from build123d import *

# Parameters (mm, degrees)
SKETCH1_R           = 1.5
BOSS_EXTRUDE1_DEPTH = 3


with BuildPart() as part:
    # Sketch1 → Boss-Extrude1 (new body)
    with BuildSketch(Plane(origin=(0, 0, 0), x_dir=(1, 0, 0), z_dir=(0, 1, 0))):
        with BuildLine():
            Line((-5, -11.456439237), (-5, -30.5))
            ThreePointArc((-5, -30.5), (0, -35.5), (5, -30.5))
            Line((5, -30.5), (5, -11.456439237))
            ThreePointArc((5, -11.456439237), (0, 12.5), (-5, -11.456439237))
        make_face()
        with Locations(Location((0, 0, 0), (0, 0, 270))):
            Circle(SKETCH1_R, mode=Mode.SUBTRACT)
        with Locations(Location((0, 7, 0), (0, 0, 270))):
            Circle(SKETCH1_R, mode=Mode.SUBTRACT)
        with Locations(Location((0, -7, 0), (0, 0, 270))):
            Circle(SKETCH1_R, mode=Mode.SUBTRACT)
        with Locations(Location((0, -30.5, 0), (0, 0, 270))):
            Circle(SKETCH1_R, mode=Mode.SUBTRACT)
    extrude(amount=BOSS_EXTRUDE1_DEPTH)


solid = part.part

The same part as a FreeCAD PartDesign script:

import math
import FreeCAD as App
import Part
import Sketcher

doc = App.newDocument("Part")
body = doc.addObject("PartDesign::Body", "Body")

sketch1 = body.newObject("Sketcher::SketchObject", "Sketch")
sketch1.AttachmentSupport = (doc.getObject("XZ_Plane"), [""])
sketch1.MapMode = "FlatFace"
sketch1.addGeometry(Part.LineSegment(App.Vector(-5, 11.456439, 0), App.Vector(-5, 30.5, 0)), False)
sketch1.addGeometry(Part.ArcOfCircle(Part.Circle(App.Vector(0, 30.5, 0), App.Vector(0, 0, 1), 5), math.radians(0), math.radians(180)), False)
sketch1.addGeometry(Part.LineSegment(App.Vector(5, 30.5, 0), App.Vector(5, 11.456439, 0)), False)
sketch1.addGeometry(Part.ArcOfCircle(Part.Circle(App.Vector(0, 0, 0), App.Vector(0, 0, 1), 12.5), math.radians(113.578178), math.radians(426.421822)), False)
sketch1.addGeometry(Part.Circle(App.Vector(0, 30.5, 0), App.Vector(0, 0, 1), 1.5), False)
sketch1.addGeometry(Part.Circle(App.Vector(0, 7, 0), App.Vector(0, 0, 1), 1.5), False)
sketch1.addGeometry(Part.Circle(App.Vector(0, 0, 0), App.Vector(0, 0, 1), 1.5), False)
sketch1.addGeometry(Part.Circle(App.Vector(0, -7, 0), App.Vector(0, 0, 1), 1.5), False)
sketch1.addConstraint(Sketcher.Constraint("Tangent", 0, 2, 1, 2))
sketch1.addConstraint(Sketcher.Constraint("Tangent", 1, 1, 2, 1))
sketch1.addConstraint(Sketcher.Constraint("Coincident", 2, 2, 3, 2))
sketch1.addConstraint(Sketcher.Constraint("Coincident", 3, 1, 0, 1))
sketch1.addConstraint(Sketcher.Constraint("Vertical", 0))
sketch1.addConstraint(Sketcher.Constraint("Vertical", 2))
sketch1.addConstraint(Sketcher.Constraint("Coincident", 3, 3, -1, 1))
sketch1.addConstraint(Sketcher.Constraint("Coincident", 6, 3, -1, 1))
sketch1.addConstraint(Sketcher.Constraint("Coincident", 4, 3, 1, 3))
sketch1.addConstraint(Sketcher.Constraint("Equal", 4, 5))
sketch1.addConstraint(Sketcher.Constraint("Equal", 5, 6))
sketch1.addConstraint(Sketcher.Constraint("Equal", 6, 7))
sketch1.addConstraint(Sketcher.Constraint("Symmetric", 5, 3, 7, 3, -1, 1))
sketch1.addConstraint(Sketcher.Constraint("PointOnObject", 1, 3, -2))
sketch1.addConstraint(Sketcher.Constraint("PointOnObject", 5, 3, -2))
sketch1.addConstraint(Sketcher.Constraint("Diameter", 4, 3.0))
sketch1.addConstraint(Sketcher.Constraint("Radius", 1, 5.0))
sketch1.addConstraint(Sketcher.Constraint("Radius", 3, 12.5))
sketch1.addConstraint(Sketcher.Constraint("DistanceY", -1, 1, 5, 3, 7.0))
sketch1.addConstraint(Sketcher.Constraint("DistanceY", -1, 1, 1, 3, 30.5))
pad1 = body.newObject("PartDesign::Pad", "Pad")
pad1.Profile = sketch1
pad1.Length = 3
pad1.Reversed = True

doc.recompute()
